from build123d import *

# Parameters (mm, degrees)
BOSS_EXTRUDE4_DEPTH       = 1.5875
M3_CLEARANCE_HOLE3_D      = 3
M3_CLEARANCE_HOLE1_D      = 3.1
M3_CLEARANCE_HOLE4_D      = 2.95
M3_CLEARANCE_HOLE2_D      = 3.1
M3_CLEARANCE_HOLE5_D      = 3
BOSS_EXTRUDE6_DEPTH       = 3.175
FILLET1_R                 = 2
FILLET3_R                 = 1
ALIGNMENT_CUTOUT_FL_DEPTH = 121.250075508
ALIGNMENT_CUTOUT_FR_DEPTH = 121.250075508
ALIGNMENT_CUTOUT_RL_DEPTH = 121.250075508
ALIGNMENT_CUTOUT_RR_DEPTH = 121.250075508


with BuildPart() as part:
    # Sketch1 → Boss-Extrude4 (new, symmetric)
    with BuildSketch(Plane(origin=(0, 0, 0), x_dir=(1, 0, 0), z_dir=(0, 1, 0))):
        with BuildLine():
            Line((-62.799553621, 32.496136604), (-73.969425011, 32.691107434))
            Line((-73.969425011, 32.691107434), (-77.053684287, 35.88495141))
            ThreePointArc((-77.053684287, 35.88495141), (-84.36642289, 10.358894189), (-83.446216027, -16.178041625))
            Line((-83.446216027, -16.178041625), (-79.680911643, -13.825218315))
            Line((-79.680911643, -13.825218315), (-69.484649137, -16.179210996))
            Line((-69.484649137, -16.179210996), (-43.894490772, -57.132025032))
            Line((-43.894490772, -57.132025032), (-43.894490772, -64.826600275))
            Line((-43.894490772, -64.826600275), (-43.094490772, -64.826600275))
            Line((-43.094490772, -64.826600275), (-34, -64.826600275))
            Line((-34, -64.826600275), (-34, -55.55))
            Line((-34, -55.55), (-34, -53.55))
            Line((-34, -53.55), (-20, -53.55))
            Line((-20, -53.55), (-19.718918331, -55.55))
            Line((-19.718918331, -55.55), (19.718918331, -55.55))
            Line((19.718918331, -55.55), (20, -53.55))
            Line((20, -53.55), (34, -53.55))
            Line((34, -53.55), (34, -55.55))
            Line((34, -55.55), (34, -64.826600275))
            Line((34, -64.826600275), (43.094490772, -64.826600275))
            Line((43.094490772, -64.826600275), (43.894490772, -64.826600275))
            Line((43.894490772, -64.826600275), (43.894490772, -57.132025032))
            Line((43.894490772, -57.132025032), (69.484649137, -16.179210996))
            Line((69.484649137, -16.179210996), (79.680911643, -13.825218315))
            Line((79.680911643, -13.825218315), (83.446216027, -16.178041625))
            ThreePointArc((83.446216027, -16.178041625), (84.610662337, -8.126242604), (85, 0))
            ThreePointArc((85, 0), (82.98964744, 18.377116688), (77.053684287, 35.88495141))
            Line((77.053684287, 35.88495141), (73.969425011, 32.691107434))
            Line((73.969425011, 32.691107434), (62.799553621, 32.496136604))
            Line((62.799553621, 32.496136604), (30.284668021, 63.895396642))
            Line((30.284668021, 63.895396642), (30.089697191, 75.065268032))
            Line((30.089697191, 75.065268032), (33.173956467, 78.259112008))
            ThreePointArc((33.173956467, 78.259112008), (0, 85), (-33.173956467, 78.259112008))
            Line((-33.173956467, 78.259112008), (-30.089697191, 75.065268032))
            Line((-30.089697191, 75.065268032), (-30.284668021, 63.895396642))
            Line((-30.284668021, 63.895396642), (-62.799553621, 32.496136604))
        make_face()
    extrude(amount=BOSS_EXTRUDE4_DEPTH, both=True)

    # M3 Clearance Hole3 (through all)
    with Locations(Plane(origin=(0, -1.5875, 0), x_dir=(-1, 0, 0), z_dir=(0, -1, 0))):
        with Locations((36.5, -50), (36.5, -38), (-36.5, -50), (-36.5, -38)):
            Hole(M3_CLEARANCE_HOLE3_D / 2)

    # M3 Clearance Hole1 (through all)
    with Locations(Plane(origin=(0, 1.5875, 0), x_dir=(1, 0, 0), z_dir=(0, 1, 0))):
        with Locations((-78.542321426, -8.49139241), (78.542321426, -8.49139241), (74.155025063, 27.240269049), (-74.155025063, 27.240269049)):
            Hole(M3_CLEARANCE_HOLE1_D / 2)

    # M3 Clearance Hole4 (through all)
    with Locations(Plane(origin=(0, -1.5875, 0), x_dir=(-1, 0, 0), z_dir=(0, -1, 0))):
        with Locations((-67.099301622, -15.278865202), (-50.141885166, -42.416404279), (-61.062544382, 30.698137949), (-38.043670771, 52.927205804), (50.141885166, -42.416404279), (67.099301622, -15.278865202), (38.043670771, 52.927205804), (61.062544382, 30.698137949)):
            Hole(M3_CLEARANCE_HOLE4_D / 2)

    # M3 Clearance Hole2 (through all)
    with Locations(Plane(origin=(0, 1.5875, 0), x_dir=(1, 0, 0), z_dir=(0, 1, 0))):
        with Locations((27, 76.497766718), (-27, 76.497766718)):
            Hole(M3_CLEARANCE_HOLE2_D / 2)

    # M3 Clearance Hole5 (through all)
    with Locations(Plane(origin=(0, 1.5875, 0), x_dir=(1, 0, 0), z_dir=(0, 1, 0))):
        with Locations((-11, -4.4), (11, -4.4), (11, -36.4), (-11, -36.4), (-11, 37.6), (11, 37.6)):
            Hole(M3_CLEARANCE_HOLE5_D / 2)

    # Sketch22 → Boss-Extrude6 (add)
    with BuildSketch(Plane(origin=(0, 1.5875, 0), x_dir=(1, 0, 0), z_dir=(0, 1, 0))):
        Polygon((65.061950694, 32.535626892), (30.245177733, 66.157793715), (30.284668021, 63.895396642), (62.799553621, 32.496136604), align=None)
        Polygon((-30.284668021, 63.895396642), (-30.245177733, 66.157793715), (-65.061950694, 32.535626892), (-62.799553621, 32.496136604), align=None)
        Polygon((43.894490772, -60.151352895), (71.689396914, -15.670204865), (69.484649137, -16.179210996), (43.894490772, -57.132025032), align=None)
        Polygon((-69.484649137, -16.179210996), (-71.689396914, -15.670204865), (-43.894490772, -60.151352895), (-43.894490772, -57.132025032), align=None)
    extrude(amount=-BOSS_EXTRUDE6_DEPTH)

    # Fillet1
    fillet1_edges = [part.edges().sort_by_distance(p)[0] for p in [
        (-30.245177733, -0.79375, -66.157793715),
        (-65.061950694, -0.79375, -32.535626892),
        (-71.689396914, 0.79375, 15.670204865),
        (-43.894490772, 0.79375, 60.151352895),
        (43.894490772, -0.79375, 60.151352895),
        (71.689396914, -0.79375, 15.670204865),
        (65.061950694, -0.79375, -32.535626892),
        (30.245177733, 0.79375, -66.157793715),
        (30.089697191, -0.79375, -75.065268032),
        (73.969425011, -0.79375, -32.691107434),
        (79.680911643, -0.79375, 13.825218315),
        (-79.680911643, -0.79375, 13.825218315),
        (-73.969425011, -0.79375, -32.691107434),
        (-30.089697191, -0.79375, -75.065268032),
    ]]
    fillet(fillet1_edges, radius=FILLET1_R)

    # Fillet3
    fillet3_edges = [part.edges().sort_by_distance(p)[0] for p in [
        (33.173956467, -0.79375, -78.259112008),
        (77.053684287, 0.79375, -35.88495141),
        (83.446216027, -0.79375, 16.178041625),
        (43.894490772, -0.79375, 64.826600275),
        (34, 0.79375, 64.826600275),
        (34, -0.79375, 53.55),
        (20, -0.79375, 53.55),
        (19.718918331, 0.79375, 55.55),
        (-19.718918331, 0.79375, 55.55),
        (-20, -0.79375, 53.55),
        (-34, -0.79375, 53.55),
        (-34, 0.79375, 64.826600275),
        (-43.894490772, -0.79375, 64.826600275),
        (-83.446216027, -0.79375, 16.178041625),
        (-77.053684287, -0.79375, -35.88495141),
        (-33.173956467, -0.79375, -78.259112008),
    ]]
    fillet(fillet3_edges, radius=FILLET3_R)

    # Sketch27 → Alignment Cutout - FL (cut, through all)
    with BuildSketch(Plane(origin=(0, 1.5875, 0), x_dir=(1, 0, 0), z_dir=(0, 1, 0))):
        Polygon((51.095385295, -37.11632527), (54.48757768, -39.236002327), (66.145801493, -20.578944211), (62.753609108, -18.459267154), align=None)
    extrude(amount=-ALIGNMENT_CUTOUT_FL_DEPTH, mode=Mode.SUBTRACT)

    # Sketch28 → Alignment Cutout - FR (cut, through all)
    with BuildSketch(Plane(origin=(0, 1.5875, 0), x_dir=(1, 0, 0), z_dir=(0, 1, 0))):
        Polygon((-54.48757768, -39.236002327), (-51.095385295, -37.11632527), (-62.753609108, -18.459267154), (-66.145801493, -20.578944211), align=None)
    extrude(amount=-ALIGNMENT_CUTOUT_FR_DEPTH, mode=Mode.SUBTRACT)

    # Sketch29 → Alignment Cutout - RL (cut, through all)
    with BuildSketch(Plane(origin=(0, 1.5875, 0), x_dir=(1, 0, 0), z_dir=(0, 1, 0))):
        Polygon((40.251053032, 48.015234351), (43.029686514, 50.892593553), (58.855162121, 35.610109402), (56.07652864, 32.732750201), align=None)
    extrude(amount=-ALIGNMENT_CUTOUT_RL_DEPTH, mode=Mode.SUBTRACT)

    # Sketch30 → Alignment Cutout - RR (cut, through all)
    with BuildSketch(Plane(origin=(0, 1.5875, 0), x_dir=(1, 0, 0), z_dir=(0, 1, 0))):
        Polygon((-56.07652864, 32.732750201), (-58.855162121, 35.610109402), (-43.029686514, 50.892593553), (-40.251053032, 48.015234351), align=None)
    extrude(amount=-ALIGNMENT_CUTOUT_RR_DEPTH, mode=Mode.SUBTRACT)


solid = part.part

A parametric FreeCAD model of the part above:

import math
import FreeCAD as App
import Part
import Sketcher

V = App.Vector
Q = App.Units.Quantity


def edges_at(feature, points):
    """Names of the edges that pass closest to the given points."""
    edges = feature.Shape.Edges
    near = lambda p: min(range(len(edges)), key=lambda i: edges[i].distToShape(Part.Vertex(*p))[0])
    return sorted({f"Edge{near(p) + 1}" for p in points})


def add_polygon(sketch, points):
    """Adds a closed chain of lines whose ends are joined by coincident constraints."""
    first, n = sketch.GeometryCount, len(points)
    for a, b in zip(points, points[1:] + points[:1]):
        sketch.addGeometry(Part.LineSegment(App.Vector(*a, 0), App.Vector(*b, 0)), False)
    for i in range(n):
        sketch.addConstraint(Sketcher.Constraint("Coincident", first + i, 2, first + (i + 1) % n, 1))

doc = App.newDocument("Part")
body = doc.addObject("PartDesign::Body", "Body")

sketch1 = doc.addObject("Sketcher::SketchObject", "Sketch")
body.addObject(sketch1)
sketch1.AttachmentSupport = (doc.XZ_Plane, [""])
sketch1.MapMode = "FlatFace"
sketch1.addGeometry([
    Part.LineSegment(V(-62.8, -32.5, 0), V(-74, -32.7, 0)),
    Part.LineSegment(V(-74, -32.7, 0), V(-77.1, -35.9, 0)),
    Part.ArcOfCircle(Part.Circle(V(0, 0, 0), V(0, 0, 1), 85), math.radians(169), math.radians(205)),
    Part.LineSegment(V(-83.4, 16.2, 0), V(-79.7, 13.8, 0)),
    Part.LineSegment(V(-79.7, 13.8, 0), V(-69.5, 16.2, 0)),
    Part.LineSegment(V(-69.5, 16.2, 0), V(-43.9, 57.1, 0)),
    Part.LineSegment(V(-43.9, 57.1, 0), V(-43.9, 64.8, 0)),
    Part.LineSegment(V(-43.9, 64.8, 0), V(-34, 64.8, 0)),
    Part.LineSegment(V(-34, 64.8, 0), V(-34, 53.5, 0)),
    Part.LineSegment(V(-34, 53.5, 0), V(-20, 53.5, 0)),
    Part.LineSegment(V(-20, 53.5, 0), V(-19.7, 55.5, 0)),
    Part.LineSegment(V(-19.7, 55.5, 0), V(19.7, 55.5, 0)),
    Part.LineSegment(V(19.7, 55.5, 0), V(20, 53.5, 0)),
    Part.LineSegment(V(20, 53.5, 0), V(34, 53.5, 0)),
    Part.LineSegment(V(34, 53.5, 0), V(34, 64.8, 0)),
    Part.LineSegment(V(34, 64.8, 0), V(43.9, 64.8, 0)),
    Part.LineSegment(V(43.9, 64.8, 0), V(43.9, 57.1, 0)),
    Part.LineSegment(V(43.9, 57.1, 0), V(69.5, 16.2, 0)),
    Part.LineSegment(V(69.5, 16.2, 0), V(79.7, 13.8, 0)),
    Part.LineSegment(V(79.7, 13.8, 0), V(83.4, 16.2, 0)),
    Part.ArcOfCircle(Part.Circle(V(0, 0, 0), V(0, 0, 1), 85), math.radians(0), math.radians(10.97)),
    Part.ArcOfCircle(Part.Circle(V(0, 0, 0), V(0, 0, 1), 85), math.radians(-25), math.radians(0)),
    Part.LineSegment(V(77.1, -35.9, 0), V(74, -32.7, 0)),
    Part.LineSegment(V(74, -32.7, 0), V(62.8, -32.5, 0)),
    Part.LineSegment(V(62.8, -32.5, 0), V(30.3, -63.9, 0)),
    Part.LineSegment(V(30.3, -63.9, 0), V(30.1, -75.1, 0)),
    Part.LineSegment(V(30.1, -75.1, 0), V(33.2, -78.3, 0)),
    Part.ArcOfCircle(Part.Circle(V(0, 0, 0), V(0, 0, 1), 85), math.radians(-113), math.radians(-67)),
    Part.LineSegment(V(-33.2, -78.3, 0), V(-30.1, -75.1, 0)),
    Part.LineSegment(V(-30.1, -75.1, 0), V(-30.3, -63.9, 0)),
    Part.LineSegment(V(-30.3, -63.9, 0), V(-62.8, -32.5, 0)),
], False)
sketch1.addConstraint([
    Sketcher.Constraint("Coincident", 0, 2, 1, 1),
    Sketcher.Constraint("Coincident", 1, 2, 2, 2),
    Sketcher.Constraint("Coincident", 2, 1, 3, 1),
    Sketcher.Constraint("Coincident", 3, 2, 4, 1),
    Sketcher.Constraint("Coincident", 4, 2, 5, 1),
    Sketcher.Constraint("Coincident", 5, 2, 6, 1),
    Sketcher.Constraint("Coincident", 6, 2, 7, 1),
    Sketcher.Constraint("Coincident", 7, 2, 8, 1),
    Sketcher.Constraint("Coincident", 8, 2, 9, 1),
    Sketcher.Constraint("Coincident", 9, 2, 10, 1),
    Sketcher.Constraint("Coincident", 10, 2, 11, 1),
    Sketcher.Constraint("Coincident", 11, 2, 12, 1),
    Sketcher.Constraint("Coincident", 12, 2, 13, 1),
    Sketcher.Constraint("Coincident", 13, 2, 14, 1),
    Sketcher.Constraint("Coincident", 14, 2, 15, 1),
    Sketcher.Constraint("Coincident", 15, 2, 16, 1),
    Sketcher.Constraint("Coincident", 16, 2, 17, 1),
    Sketcher.Constraint("Coincident", 17, 2, 18, 1),
    Sketcher.Constraint("Coincident", 18, 2, 19, 1),
    Sketcher.Constraint("Coincident", 19, 2, 20, 2),
    Sketcher.Constraint("Tangent", 20, 1, 21, 2),
    Sketcher.Constraint("Coincident", 21, 1, 22, 1),
    Sketcher.Constraint("Coincident", 22, 2, 23, 1),
    Sketcher.Constraint("Coincident", 23, 2, 24, 1),
    Sketcher.Constraint("Coincident", 24, 2, 25, 1),
    Sketcher.Constraint("Coincident", 25, 2, 26, 1),
    Sketcher.Constraint("Coincident", 26, 2, 27, 2),
    Sketcher.Constraint("Coincident", 27, 1, 28, 1),
    Sketcher.Constraint("Coincident", 28, 2, 29, 1),
    Sketcher.Constraint("Coincident", 29, 2, 30, 1),
    Sketcher.Constraint("Coincident", 30, 2, 0, 1),
    Sketcher.Constraint("Vertical", 6),
    Sketcher.Constraint("Horizontal", 7),
    Sketcher.Constraint("Vertical", 8),
    Sketcher.Constraint("Horizontal", 9),
    Sketcher.Constraint("Horizontal", 11),
    Sketcher.Constraint("Horizontal", 13),
    Sketcher.Constraint("Vertical", 14),
    Sketcher.Constraint("Horizontal", 15),
    Sketcher.Constraint("Vertical", 16),
    Sketcher.Constraint("Coincident", 2, 3, -1, 1),
    Sketcher.Constraint("Coincident", 20, 3, -1, 1),
    Sketcher.Constraint("Coincident", 27, 3, -1, 1),
    Sketcher.Constraint("Equal", 2, 20),
    Sketcher.Constraint("Equal", 20, 21),
    Sketcher.Constraint("Equal", 21, 27),
    Sketcher.Constraint("Symmetric", 9, 2, 12, 2, -2),
    Sketcher.Constraint("Symmetric", 7, 2, 14, 2, -2),
    Sketcher.Constraint("Symmetric", 5, 2, 16, 2, -2),
    Sketcher.Constraint("Symmetric", 4, 2, 17, 2, -2),
    Sketcher.Constraint("Symmetric", 3, 2, 18, 2, -2),
    Sketcher.Constraint("Symmetric", 0, 2, 22, 2, -2),
    Sketcher.Constraint("Symmetric", 25, 2, 28, 2, -2),
    Sketcher.Constraint("Symmetric", 24, 2, 29, 2, -2),
    Sketcher.Constraint("Symmetric", 23, 2, 30, 2, -2),
    Sketcher.Constraint("PointOnObject", 20, 1, -1),
    Sketcher.Constraint("Perpendicular", 3, 5),
    Sketcher.Constraint("Perpendicular", 17, 19),
    Sketcher.Constraint("Perpendicular", 22, 24),
    Sketcher.Constraint("Perpendicular", 23, 25),
    Sketcher.Constraint("Perpendicular", 24, 26),
    Sketcher.Constraint("Parallel", 1, 28),
    Sketcher.Constraint("Perpendicular", 28, 30),
    Sketcher.Constraint("Equal", 1, 3),
    Sketcher.Constraint("Equal", 10, 12),
    Sketcher.Constraint("Equal", 23, 25),
    Sketcher.Constraint("Equal", 22, 26),
    Sketcher.Constraint("Radius", 2, Q("85 mm")),
    Sketcher.Constraint("DistanceX", 9, 1, 9, 2, Q("14 mm")),
    Sketcher.Constraint("Angle", 0, Q("-179 deg")),
    Sketcher.Constraint("Angle", 1, Q("-134 deg")),
    Sketcher.Constraint("Angle", 3, Q("-32 deg")),
    Sketcher.Constraint("Angle", 4, Q("13 deg")),
    Sketcher.Constraint("Angle", 10, Q("82 deg")),
    Sketcher.Constraint("DistanceX", 7, 2, -1, 1, Q("34 mm")),
    Sketcher.Constraint("DistanceY", 9, 2, 10, 2, Q("2 mm")),
    Sketcher.Constraint("DistanceY", -1, 1, 8, 2, Q("53.55 mm")),
    Sketcher.Constraint("DistanceY", 8, 2, 8, 1, Q("11.2766 mm")),
    Sketcher.Constraint("DistanceX", 7, 1, 7, 2, Q("9.894491 mm")),
    Sketcher.Constraint("Distance", 24, Q("45.20101 mm")),
    Sketcher.Constraint("DistanceY", 6, 1, 6, 2, Q("7.694575 mm")),
    Sketcher.Constraint("DistanceY", 1, 2, -1, 1, Q("35.884951 mm")),
    Sketcher.Constraint("DistanceY", -1, 1, 2, 1, Q("16.178042 mm")),
    Sketcher.Constraint("DistanceX", 3, 2, -1, 1, Q("79.680912 mm")),
])
pad1 = doc.addObject("PartDesign::Pad", "Pad")
body.addObject(pad1)
pad1.Profile = sketch1
pad1.Length = 3.175
pad1.Midplane = True

sketch2 = doc.addObject("Sketcher::SketchObject", "Sketch001")
body.addObject(sketch2)
sketch2.AttachmentSupport = (doc.XZ_Plane, [""])
sketch2.MapMode = "FlatFace"
sketch2.AttachmentOffset = App.Placement(V(0, 0, 1.5875), App.Rotation())
sketch2.addGeometry([
    Part.Circle(V(-36.5, 50, 0), V(0, 0, 1), 1.5),
    Part.Circle(V(-36.5, 38, 0), V(0, 0, 1), 1.5),
    Part.Circle(V(36.5, 50, 0), V(0, 0, 1), 1.5),
    Part.Circle(V(36.5, 38, 0), V(0, 0, 1), 1.5),
], False)
sketch2.addConstraint([
    Sketcher.Constraint("Equal", 0, 1),
    Sketcher.Constraint("Equal", 1, 2),
    Sketcher.Constraint("Equal", 2, 3),
    Sketcher.Constraint("Symmetric", 0, 3, 2, 3, -2),
    Sketcher.Constraint("Symmetric", 1, 3, 3, 3, -2),
    Sketcher.Constraint("Vertical", 0, 3, 1, 3),
    Sketcher.Constraint("Diameter", 0, Q("3 mm")),
    Sketcher.Constraint("DistanceY", -1, 1, 0, 3, Q("50 mm")),
    Sketcher.Constraint("DistanceY", -1, 1, 1, 3, Q("38 mm")),
    Sketcher.Constraint("DistanceX", 0, 3, 2, 3, Q("73 mm")),
])
doc.recompute()
hole = doc.addObject("PartDesign::Hole", "Hole")
body.addObject(hole)
hole.Profile = sketch2
hole.ThreadType = "None"
hole.Diameter = 3
hole.DepthType = "ThroughAll"

sketch3 = doc.addObject("Sketcher::SketchObject", "Sketch002")
body.addObject(sketch3)
sketch3.AttachmentSupport = (doc.XZ_Plane, [""])
sketch3.MapMode = "FlatFace"
sketch3.AttachmentOffset = App.Placement(V(0, 0, -1.5875), App.Rotation())
sketch3.addGeometry([
    Part.Circle(V(-78.5, 8.5, 0), V(0, 0, 1), 1.6),
    Part.Circle(V(78.5, 8.5, 0), V(0, 0, 1), 1.6),
    Part.Circle(V(74.2, -27.2, 0), V(0, 0, 1), 1.6),
    Part.Circle(V(-74.2, -27.2, 0), V(0, 0, 1), 1.6),
], False)
sketch3.addConstraint([
    Sketcher.Constraint("Equal", 0, 1),
    Sketcher.Constraint("Equal", 1, 2),
    Sketcher.Constraint("Equal", 2, 3),
    Sketcher.Constraint("Symmetric", 0, 3, 1, 3, -2),
    Sketcher.Constraint("Symmetric", 2, 3, 3, 3, -2),
    Sketcher.Constraint("Diameter", 0, Q("3.1 mm")),
    Sketcher.Constraint("DistanceX", 0, 3, -1, 1, Q("78.542321 mm")),
    Sketcher.Constraint("DistanceY", 2, 3, -1, 1, Q("27.240269 mm")),
    Sketcher.Constraint("DistanceY", 2, 3, 1, 3, Q("35.731661 mm")),
    Sketcher.Constraint("DistanceX", 3, 3, 2, 3, Q("148.31005 mm")),
])
doc.recompute()
hole2 = doc.addObject("PartDesign::Hole", "Hole001")
body.addObject(hole2)
hole2.Profile = sketch3
hole2.ThreadType = "None"
hole2.Diameter = 3.1
hole2.DepthType = "ThroughAll"
hole2.Reversed = True

sketch4 = doc.addObject("Sketcher::SketchObject", "Sketch003")
body.addObject(sketch4)
sketch4.AttachmentSupport = (doc.XZ_Plane, [""])
sketch4.MapMode = "FlatFace"
sketch4.AttachmentOffset = App.Placement(V(0, 0, 1.5875), App.Rotation())
sketch4.addGeometry([
    Part.Circle(V(67.1, 15.3, 0), V(0, 0, 1), 1.5),
    Part.Circle(V(50.1, 42.4, 0), V(0, 0, 1), 1.5),
    Part.Circle(V(61.1, -30.7, 0), V(0, 0, 1), 1.5),
    Part.Circle(V(38, -52.9, 0), V(0, 0, 1), 1.5),
    Part.Circle(V(-50.1, 42.4, 0), V(0, 0, 1), 1.5),
    Part.Circle(V(-67.1, 15.3, 0), V(0, 0, 1), 1.5),
    Part.Circle(V(-38, -52.9, 0), V(0, 0, 1), 1.5),
    Part.Circle(V(-61.1, -30.7, 0), V(0, 0, 1), 1.5),
], False)
sketch4.addConstraint([
    Sketcher.Constraint("Equal", 0, 1),
    Sketcher.Constraint("Equal", 1, 2),
    Sketcher.Constraint("Equal", 2, 3),
    Sketcher.Constraint("Equal", 3, 4),
    Sketcher.Constraint("Equal", 4, 5),
    Sketcher.Constraint("Equal", 5, 6),
    Sketcher.Constraint("Equal", 6, 7),
    Sketcher.Constraint("Symmetric", 1, 3, 4, 3, -2),
    Sketcher.Constraint("Symmetric", 0, 3, 5, 3, -2),
    Sketcher.Constraint("Symmetric", 3, 3, 6, 3, -2),
    Sketcher.Constraint("Symmetric", 2, 3, 7, 3, -2),
    Sketcher.Constraint("Diameter", 0, Q("2.95 mm")),
    Sketcher.Constraint("DistanceX", -1, 1, 0, 3, Q("67.099302 mm")),
    Sketcher.Constraint("DistanceX", -1, 1, 3, 3, Q("38.043671 mm")),
    Sketcher.Constraint("DistanceY", 0, 3, 1, 3, Q("27.137539 mm")),
    Sketcher.Constraint("DistanceX", 1, 3, 2, 3, Q("10.920659 mm")),
    Sketcher.Constraint("DistanceY", 3, 3, 0, 3, Q("68.206071 mm")),
    Sketcher.Constraint("DistanceX", 4, 3, 1, 3, Q("100.28377 mm")),
    Sketcher.Constraint("DistanceY", -1, 1, 0, 3, Q("15.278865 mm")),
    Sketcher.Constraint("DistanceY", 2, 3, -1, 1, Q("30.698138 mm")),
])
doc.recompute()
hole3 = doc.addObject("PartDesign::Hole", "Hole002")
body.addObject(hole3)
hole3.Profile = sketch4
hole3.ThreadType = "None"
hole3.Diameter = 2.95
hole3.DepthType = "ThroughAll"

sketch5 = doc.addObject("Sketcher::SketchObject", "Sketch004")
body.addObject(sketch5)
sketch5.AttachmentSupport = (doc.XZ_Plane, [""])
sketch5.MapMode = "FlatFace"
sketch5.AttachmentOffset = App.Placement(V(0, 0, -1.5875), App.Rotation())
sketch5.addGeometry([
    Part.Circle(V(27, -76.5, 0), V(0, 0, 1), 1.6),
    Part.Circle(V(-27, -76.5, 0), V(0, 0, 1), 1.6),
], False)
sketch5.addConstraint([
    Sketcher.Constraint("Equal", 0, 1),
    Sketcher.Constraint("Symmetric", 0, 3, 1, 3, -2),
    Sketcher.Constraint("Diameter", 0, Q("3.1 mm")),
    Sketcher.Constraint("DistanceX", -1, 1, 0, 3, Q("27 mm")),
    Sketcher.Constraint("DistanceY", 0, 3, -1, 1, Q("76.497767 mm")),
])
doc.recompute()
hole4 = doc.addObject("PartDesign::Hole", "Hole003")
body.addObject(hole4)
hole4.Profile = sketch5
hole4.ThreadType = "None"
hole4.Diameter = 3.1
hole4.DepthType = "ThroughAll"
hole4.Reversed = True

sketch6 = doc.addObject("Sketcher::SketchObject", "Sketch005")
body.addObject(sketch6)
sketch6.AttachmentSupport = (doc.XZ_Plane, [""])
sketch6.MapMode = "FlatFace"
sketch6.AttachmentOffset = App.Placement(V(0, 0, -1.5875), App.Rotation())
sketch6.addGeometry([
    Part.Circle(V(-11, 4.4, 0), V(0, 0, 1), 1.5),
    Part.Circle(V(11, 4.4, 0), V(0, 0, 1), 1.5),
    Part.Circle(V(11, 36.4, 0), V(0, 0, 1), 1.5),
    Part.Circle(V(-11, 36.4, 0), V(0, 0, 1), 1.5),
    Part.Circle(V(-11, -37.6, 0), V(0, 0, 1), 1.5),
    Part.Circle(V(11, -37.6, 0), V(0, 0, 1), 1.5),
], False)
sketch6.addConstraint([
    Sketcher.Constraint("Equal", 0, 1),
    Sketcher.Constraint("Equal", 1, 2),
    Sketcher.Constraint("Equal", 2, 3),
    Sketcher.Constraint("Equal", 3, 4),
    Sketcher.Constraint("Equal", 4, 5),
    Sketcher.Constraint("Symmetric", 0, 3, 1, 3, -2),
    Sketcher.Constraint("Symmetric", 2, 3, 3, 3, -2),
    Sketcher.Constraint("Symmetric", 4, 3, 5, 3, -2),
    Sketcher.Constraint("Vertical", 1, 3, 2, 3),
    Sketcher.Constraint("Vertical", 3, 3, 4, 3),
    Sketcher.Constraint("Diameter", 0, Q("3 mm")),
    Sketcher.Constraint("DistanceX", 0, 3, -1, 1, Q("11 mm")),
    Sketcher.Constraint("DistanceY", 1, 3, 2, 3, Q("32 mm")),
    Sketcher.Constraint("DistanceY", 4, 3, 0, 3, Q("42 mm")),
    Sketcher.Constraint("DistanceY", -1, 1, 0, 3, Q("4.4 mm")),
])
doc.recompute()
hole5 = doc.addObject("PartDesign::Hole", "Hole004")
body.addObject(hole5)
hole5.Profile = sketch6
hole5.ThreadType = "None"
hole5.Diameter = 3
hole5.DepthType = "ThroughAll"
hole5.Reversed = True

sketch7 = doc.addObject("Sketcher::SketchObject", "Sketch006")
body.addObject(sketch7)
sketch7.AttachmentSupport = (doc.XZ_Plane, [""])
sketch7.MapMode = "FlatFace"
sketch7.AttachmentOffset = App.Placement(V(0, 0, -1.5875), App.Rotation())
add_polygon(sketch7, [(65.1, -32.5), (30.2, -66.2), (30.3, -63.9), (62.8, -32.5)])
add_polygon(sketch7, [(-30.3, -63.9), (-30.2, -66.2), (-65.1, -32.5), (-62.8, -32.5)])
add_polygon(sketch7, [(43.9, 60.2), (71.7, 15.7), (69.5, 16.2), (43.9, 57.1)])
add_polygon(sketch7, [(-69.5, 16.2), (-71.7, 15.7), (-43.9, 60.2), (-43.9, 57.1)])
sketch7.addConstraint([
    Sketcher.Constraint("Vertical", 11),
    Sketcher.Constraint("Vertical", 14),
    Sketcher.Constraint("Symmetric", 0, 2, 4, 2, -2),
    Sketcher.Constraint("Symmetric", 3, 2, 5, 2, -2),
    Sketcher.Constraint("Symmetric", 2, 2, 6, 2, -2),
    Sketcher.Constraint("Symmetric", 1, 2, 7, 2, -2),
    Sketcher.Constraint("Symmetric", 8, 2, 12, 2, -2),
    Sketcher.Constraint("Symmetric", 11, 2, 13, 2, -2),
    Sketcher.Constraint("Symmetric", 9, 2, 15, 2, -2),
    Sketcher.Constraint("Parallel", 0, 2),
    Sketcher.Constraint("Perpendicular", 1, 3),
    Sketcher.Constraint("Parallel", 8, 10),
    Sketcher.Constraint("Parallel", 13, 15),
    Sketcher.Constraint("Equal", 1, 3),
    Sketcher.Constraint("Equal", 6, 9),
    Sketcher.Constraint("Angle", 0, Q("-136 deg")),
    Sketcher.Constraint("Angle", 8, Q("-58 deg")),
    Sketcher.Constraint("Angle", 9, Q("167 deg")),
    Sketcher.Constraint("DistanceY", 0, 2, 8, 2, Q("81.827999 mm")),
    Sketcher.Constraint("DistanceX", 5, 2, 3, 2, Q("130.123901 mm")),
    Sketcher.Constraint("DistanceY", 1, 2, 8, 2, Q("79.565602 mm")),
    Sketcher.Constraint("DistanceX", 3, 2, 9, 2, Q("4.422698 mm")),
    Sketcher.Constraint("Distance", 0, Q("48.40101 mm")),
    Sketcher.Constraint("Distance", 8, Q("52.451209 mm")),
    Sketcher.Constraint("DistanceY", -1, 1, 9, 2, Q("16.179211 mm")),
])
pad2 = doc.addObject("PartDesign::Pad", "Pad001")
body.addObject(pad2)
pad2.Profile = sketch7
pad2.Length = 3.175
doc.recompute()

fillet = doc.addObject("PartDesign::Fillet", "Fillet")
body.addObject(fillet)
fillet.Base = (pad2, edges_at(pad2, [
    (-30.245, 0, -66.158),
    (-65.062, 0, -32.536),
    (-71.689, 0, 15.67),
    (-43.894, 0, 60.151),
    (43.894, 0, 60.151),
    (71.689, 0, 15.67),
    (65.062, 0, -32.536),
    (30.245, 0, -66.158),
    (30.09, 0, -75.065),
    (73.969, 0, -32.691),
    (79.681, 0, 13.825),
    (-79.681, 0, 13.825),
    (-73.969, 0, -32.691),
    (-30.09, 0, -75.065),
]))
fillet.Radius = 2
doc.recompute()

fillet2 = doc.addObject("PartDesign::Fillet", "Fillet001")
body.addObject(fillet2)
fillet2.Base = (fillet, edges_at(fillet, [
    (33.174, 0, -78.259),
    (77.054, 0, -35.885),
    (83.446, 0, 16.178),
    (43.894, 0, 64.827),
    (34, 0, 64.827),
    (34, 0, 53.55),
    (20, 0, 53.55),
    (19.719, 0, 55.55),
    (-19.719, 0, 55.55),
    (-20, 0, 53.55),
    (-34, 0, 53.55),
    (-34, 0, 64.827),
    (-43.894, 0, 64.827),
    (-83.446, 0, 16.178),
    (-77.054, 0, -35.885),
    (-33.174, 0, -78.259),
]))
fillet2.Radius = 1

sketch8 = doc.addObject("Sketcher::SketchObject", "Sketch007")
body.addObject(sketch8)
sketch8.AttachmentSupport = (doc.XZ_Plane, [""])
sketch8.MapMode = "FlatFace"
sketch8.AttachmentOffset = App.Placement(V(0, 0, -1.5875), App.Rotation())
add_polygon(sketch8, [(51.1, 37.1), (54.5, 39.2), (66.1, 20.6), (62.8, 18.5)])
sketch8.addConstraint([
    Sketcher.Constraint("Perpendicular", 0, 1),
    Sketcher.Constraint("Perpendicular", 1, 2),
    Sketcher.Constraint("Perpendicular", 2, 3),
    Sketcher.Constraint("Angle", 0, Q("32 deg")),
    Sketcher.Constraint("Distance", 0, Q("4 mm")),
    Sketcher.Constraint("Distance", 1, Q("22 mm")),
    Sketcher.Constraint("DistanceX", -1, 1, 1, 2, Q("66.145801 mm")),
    Sketcher.Constraint("DistanceY", -1, 1, 0, 2, Q("39.236002 mm")),
])
pocket1 = doc.addObject("PartDesign::Pocket", "Pocket")
body.addObject(pocket1)
pocket1.Profile = sketch8
pocket1.Type = "ThroughAll"
pocket1.Reversed = True

sketch9 = doc.addObject("Sketcher::SketchObject", "Sketch008")
body.addObject(sketch9)
sketch9.AttachmentSupport = (doc.XZ_Plane, [""])
sketch9.MapMode = "FlatFace"
sketch9.AttachmentOffset = App.Placement(V(0, 0, -1.5875), App.Rotation())
add_polygon(sketch9, [(-54.5, 39.2), (-51.1, 37.1), (-62.8, 18.5), (-66.1, 20.6)])
sketch9.addConstraint([
    Sketcher.Constraint("Perpendicular", 0, 1),
    Sketcher.Constraint("Perpendicular", 1, 2),
    Sketcher.Constraint("Perpendicular", 2, 3),
    Sketcher.Constraint("Angle", 0, Q("-32 deg")),
    Sketcher.Constraint("Distance", 0, Q("4 mm")),
    Sketcher.Constraint("Distance", 1, Q("22 mm")),
    Sketcher.Constraint("DistanceX", 2, 2, -1, 1, Q("66.145801 mm")),
    Sketcher.Constraint("DistanceY", -1, 1, 0, 2, Q("37.116325 mm")),
])
pocket2 = doc.addObject("PartDesign::Pocket", "Pocket001")
body.addObject(pocket2)
pocket2.Profile = sketch9
pocket2.Type = "ThroughAll"
pocket2.Reversed = True

sketch10 = doc.addObject("Sketcher::SketchObject", "Sketch009")
body.addObject(sketch10)
sketch10.AttachmentSupport = (doc.XZ_Plane, [""])
sketch10.MapMode = "FlatFace"
sketch10.AttachmentOffset = App.Placement(V(0, 0, -1.5875), App.Rotation())
add_polygon(sketch10, [(43, -50.9), (40.3, -48), (56.1, -32.7), (58.9, -35.6)])
sketch10.addConstraint([
    Sketcher.Constraint("Perpendicular", 0, 1),
    Sketcher.Constraint("Perpendicular", 1, 2),
    Sketcher.Constraint("Perpendicular", 2, 3),
    Sketcher.Constraint("Angle", 0, Q("134 deg")),
    Sketcher.Constraint("Distance", 0, Q("4 mm")),
    Sketcher.Constraint("Distance", 1, Q("22 mm")),
    Sketcher.Constraint("DistanceX", -1, 1, 1, 2, Q("56.076529 mm")),
    Sketcher.Constraint("DistanceY", 1, 2, -1, 1, Q("32.73275 mm")),
])
pocket3 = doc.addObject("PartDesign::Pocket", "Pocket002")
body.addObject(pocket3)
pocket3.Profile = sketch10
pocket3.Type = "ThroughAll"
pocket3.Reversed = True

sketch11 = doc.addObject("Sketcher::SketchObject", "Sketch010")
body.addObject(sketch11)
sketch11.AttachmentSupport = (doc.XZ_Plane, [""])
sketch11.MapMode = "FlatFace"
sketch11.AttachmentOffset = App.Placement(V(0, 0, -1.5875), App.Rotation())
add_polygon(sketch11, [(-58.9, -35.6), (-56.1, -32.7), (-40.3, -48), (-43, -50.9)])
sketch11.addConstraint([
    Sketcher.Constraint("Perpendicular", 0, 1),
    Sketcher.Constraint("Perpendicular", 1, 2),
    Sketcher.Constraint("Perpendicular", 2, 3),
    Sketcher.Constraint("Angle", 0, Q("46 deg")),
    Sketcher.Constraint("Distance", 0, Q("4 mm")),
    Sketcher.Constraint("Distance", 1, Q("22 mm")),
    Sketcher.Constraint("DistanceX", 0, 2, -1, 1, Q("56.076529 mm")),
    Sketcher.Constraint("DistanceY", 0, 2, -1, 1, Q("32.73275 mm")),
])
pocket4 = doc.addObject("PartDesign::Pocket", "Pocket003")
body.addObject(pocket4)
pocket4.Profile = sketch11
pocket4.Type = "ThroughAll"
pocket4.Reversed = True

doc.recompute()
